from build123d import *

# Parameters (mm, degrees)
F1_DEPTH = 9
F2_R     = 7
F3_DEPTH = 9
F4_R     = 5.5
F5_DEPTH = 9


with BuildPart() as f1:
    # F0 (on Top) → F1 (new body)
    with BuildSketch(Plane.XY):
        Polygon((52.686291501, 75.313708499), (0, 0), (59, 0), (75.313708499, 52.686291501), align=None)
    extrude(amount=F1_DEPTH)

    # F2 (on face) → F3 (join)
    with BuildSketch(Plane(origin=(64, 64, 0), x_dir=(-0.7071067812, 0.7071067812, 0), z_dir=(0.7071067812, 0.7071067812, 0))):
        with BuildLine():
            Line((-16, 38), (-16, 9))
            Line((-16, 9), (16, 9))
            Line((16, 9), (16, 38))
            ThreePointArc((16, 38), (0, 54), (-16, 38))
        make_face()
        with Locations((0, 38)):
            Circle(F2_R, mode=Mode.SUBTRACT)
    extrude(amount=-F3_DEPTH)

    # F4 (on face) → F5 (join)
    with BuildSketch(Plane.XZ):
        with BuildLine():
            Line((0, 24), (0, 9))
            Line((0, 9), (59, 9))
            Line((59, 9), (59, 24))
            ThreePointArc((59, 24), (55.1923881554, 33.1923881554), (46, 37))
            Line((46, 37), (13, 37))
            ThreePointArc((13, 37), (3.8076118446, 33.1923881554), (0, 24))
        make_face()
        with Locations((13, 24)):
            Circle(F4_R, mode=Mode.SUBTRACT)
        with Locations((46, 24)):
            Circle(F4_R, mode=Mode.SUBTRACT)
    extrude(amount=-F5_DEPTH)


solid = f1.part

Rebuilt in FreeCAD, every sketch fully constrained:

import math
import FreeCAD as App
import Part
import Sketcher
from FreeCAD import Vector
Q = App.Units.Quantity


def add_polygon(sketch, points):
    """Adds a closed chain of lines whose ends are joined by coincident constraints."""
    first, n = sketch.GeometryCount, len(points)
    for a, b in zip(points, points[1:] + points[:1]):
        sketch.addGeometry(Part.LineSegment(App.Vector(*a, 0), App.Vector(*b, 0)), False)
    for i in range(n):
        sketch.addConstraint(Sketcher.Constraint("Coincident", first + i, 2, first + (i + 1) % n, 1))

doc = App.newDocument("Part")
body = doc.addObject("PartDesign::Body", "Body")

sketch1 = doc.addObject("Sketcher::SketchObject", "Sketch")
body.addObject(sketch1)
sketch1.AttachmentSupport = (doc.XY_Plane, [""])
sketch1.MapMode = "FlatFace"
add_polygon(sketch1, [(53, 75), (0, 0), (59, 0), (75, 53)])
sketch1.addConstraint([
    Sketcher.Constraint("Horizontal", 1),
    Sketcher.Constraint("Coincident", 0, 2, -1, 1),
    Sketcher.Constraint("DistanceX", 1, 1, 1, 2, Q("59 mm")),
    Sketcher.Constraint("Angle", 3, Q("135 deg")),
    Sketcher.Constraint("Distance", 3, Q("32 mm")),
    Sketcher.Constraint("Distance", 2, Q("55.154169 mm")),
    Sketcher.Constraint("DistanceX", -1, 1, 2, 2, Q("75.313708 mm")),
])
pad1 = doc.addObject("PartDesign::Pad", "Pad")
body.addObject(pad1)
pad1.Profile = sketch1
pad1.Length = 9

sketch2 = doc.addObject("Sketcher::SketchObject", "Sketch001")
body.addObject(sketch2)
sketch2.Placement = App.Placement(Vector(64, 64, 0), App.Rotation(Vector(-0.707106781, 0.707106781, 0), Vector(0, 0, 0.999999999), Vector(0.707106781, 0.707106781, 0), "ZXY"))
sketch2.addGeometry([
    Part.LineSegment(Vector(-16, 38, 0), Vector(-16, 9, 0)),
    Part.LineSegment(Vector(-16, 9, 0), Vector(16, 9, 0)),
    Part.LineSegment(Vector(16, 9, 0), Vector(16, 38, 0)),
    Part.ArcOfCircle(Part.Circle(Vector(0, 38, 0), Vector(0, 0, 1), 16), math.radians(0), math.radians(180)),
    Part.Circle(Vector(0, 38, 0), Vector(0, 0, 1), 7),
], False)
sketch2.addConstraint([
    Sketcher.Constraint("Coincident", 0, 2, 1, 1),
    Sketcher.Constraint("Coincident", 1, 2, 2, 1),
    Sketcher.Constraint("Tangent", 2, 2, 3, 1),
    Sketcher.Constraint("Tangent", 3, 2, 0, 1),
    Sketcher.Constraint("Vertical", 0),
    Sketcher.Constraint("Horizontal", 1),
    Sketcher.Constraint("Vertical", 2),
    Sketcher.Constraint("Coincident", 4, 3, 3, 3),
    Sketcher.Constraint("PointOnObject", 3, 3, -2),
    Sketcher.Constraint("Diameter", 4, Q("14 mm")),
    Sketcher.Constraint("Radius", 3, Q("16 mm")),
    Sketcher.Constraint("DistanceY", 0, 2, 0, 1, Q("29 mm")),
    Sketcher.Constraint("DistanceY", -1, 1, 3, 3, Q("38 mm")),
])
pad2 = doc.addObject("PartDesign::Pad", "Pad001")
body.addObject(pad2)
pad2.Profile = sketch2
pad2.Length = 9
pad2.Reversed = True

sketch3 = doc.addObject("Sketcher::SketchObject", "Sketch002")
body.addObject(sketch3)
sketch3.AttachmentSupport = (doc.XZ_Plane, [""])
sketch3.MapMode = "FlatFace"
sketch3.addGeometry([
    Part.LineSegment(Vector(0, 24, 0), Vector(0, 9, 0)),
    Part.LineSegment(Vector(0, 9, 0), Vector(59, 9, 0)),
    Part.LineSegment(Vector(59, 9, 0), Vector(59, 24, 0)),
    Part.ArcOfCircle(Part.Circle(Vector(46, 24, 0), Vector(0, 0, 1), 13), math.radians(0), math.radians(90)),
    Part.LineSegment(Vector(46, 37, 0), Vector(13, 37, 0)),
    Part.ArcOfCircle(Part.Circle(Vector(13, 24, 0), Vector(0, 0, 1), 13), math.radians(90), math.radians(180)),
    Part.Circle(Vector(13, 24, 0), Vector(0, 0, 1), 6),
    Part.Circle(Vector(46, 24, 0), Vector(0, 0, 1), 6),
], False)
sketch3.addConstraint([
    Sketcher.Constraint("Coincident", 0, 2, 1, 1),
    Sketcher.Constraint("Coincident", 1, 2, 2, 1),
    Sketcher.Constraint("Tangent", 2, 2, 3, 1),
    Sketcher.Constraint("Tangent", 3, 2, 4, 1),
    Sketcher.Constraint("Tangent", 4, 2, 5, 1),
    Sketcher.Constraint("Tangent", 5, 2, 0, 1),
    Sketcher.Constraint("Vertical", 0),
    Sketcher.Constraint("Horizontal", 1),
    Sketcher.Constraint("Vertical", 2),
    Sketcher.Constraint("Horizontal", 4),
    Sketcher.Constraint("Coincident", 6, 3, 5, 3),
    Sketcher.Constraint("Coincident", 7, 3, 3, 3),
    Sketcher.Constraint("Equal", 3, 5),
    Sketcher.Constraint("Equal", 6, 7),
    Sketcher.Constraint("PointOnObject", 0, 2, -2),
    Sketcher.Constraint("Diameter", 6, Q("11 mm")),
    Sketcher.Constraint("Radius", 3, Q("13 mm")),
    Sketcher.Constraint("DistanceX", 1, 1, 1, 2, Q("59 mm")),
    Sketcher.Constraint("DistanceY", 0, 2, 0, 1, Q("15 mm")),
    Sketcher.Constraint("DistanceY", -1, 1, 3, 3, Q("24 mm")),
])
pad3 = doc.addObject("PartDesign::Pad", "Pad002")
body.addObject(pad3)
pad3.Profile = sketch3
pad3.Length = 9
pad3.Reversed = True

doc.recompute()
